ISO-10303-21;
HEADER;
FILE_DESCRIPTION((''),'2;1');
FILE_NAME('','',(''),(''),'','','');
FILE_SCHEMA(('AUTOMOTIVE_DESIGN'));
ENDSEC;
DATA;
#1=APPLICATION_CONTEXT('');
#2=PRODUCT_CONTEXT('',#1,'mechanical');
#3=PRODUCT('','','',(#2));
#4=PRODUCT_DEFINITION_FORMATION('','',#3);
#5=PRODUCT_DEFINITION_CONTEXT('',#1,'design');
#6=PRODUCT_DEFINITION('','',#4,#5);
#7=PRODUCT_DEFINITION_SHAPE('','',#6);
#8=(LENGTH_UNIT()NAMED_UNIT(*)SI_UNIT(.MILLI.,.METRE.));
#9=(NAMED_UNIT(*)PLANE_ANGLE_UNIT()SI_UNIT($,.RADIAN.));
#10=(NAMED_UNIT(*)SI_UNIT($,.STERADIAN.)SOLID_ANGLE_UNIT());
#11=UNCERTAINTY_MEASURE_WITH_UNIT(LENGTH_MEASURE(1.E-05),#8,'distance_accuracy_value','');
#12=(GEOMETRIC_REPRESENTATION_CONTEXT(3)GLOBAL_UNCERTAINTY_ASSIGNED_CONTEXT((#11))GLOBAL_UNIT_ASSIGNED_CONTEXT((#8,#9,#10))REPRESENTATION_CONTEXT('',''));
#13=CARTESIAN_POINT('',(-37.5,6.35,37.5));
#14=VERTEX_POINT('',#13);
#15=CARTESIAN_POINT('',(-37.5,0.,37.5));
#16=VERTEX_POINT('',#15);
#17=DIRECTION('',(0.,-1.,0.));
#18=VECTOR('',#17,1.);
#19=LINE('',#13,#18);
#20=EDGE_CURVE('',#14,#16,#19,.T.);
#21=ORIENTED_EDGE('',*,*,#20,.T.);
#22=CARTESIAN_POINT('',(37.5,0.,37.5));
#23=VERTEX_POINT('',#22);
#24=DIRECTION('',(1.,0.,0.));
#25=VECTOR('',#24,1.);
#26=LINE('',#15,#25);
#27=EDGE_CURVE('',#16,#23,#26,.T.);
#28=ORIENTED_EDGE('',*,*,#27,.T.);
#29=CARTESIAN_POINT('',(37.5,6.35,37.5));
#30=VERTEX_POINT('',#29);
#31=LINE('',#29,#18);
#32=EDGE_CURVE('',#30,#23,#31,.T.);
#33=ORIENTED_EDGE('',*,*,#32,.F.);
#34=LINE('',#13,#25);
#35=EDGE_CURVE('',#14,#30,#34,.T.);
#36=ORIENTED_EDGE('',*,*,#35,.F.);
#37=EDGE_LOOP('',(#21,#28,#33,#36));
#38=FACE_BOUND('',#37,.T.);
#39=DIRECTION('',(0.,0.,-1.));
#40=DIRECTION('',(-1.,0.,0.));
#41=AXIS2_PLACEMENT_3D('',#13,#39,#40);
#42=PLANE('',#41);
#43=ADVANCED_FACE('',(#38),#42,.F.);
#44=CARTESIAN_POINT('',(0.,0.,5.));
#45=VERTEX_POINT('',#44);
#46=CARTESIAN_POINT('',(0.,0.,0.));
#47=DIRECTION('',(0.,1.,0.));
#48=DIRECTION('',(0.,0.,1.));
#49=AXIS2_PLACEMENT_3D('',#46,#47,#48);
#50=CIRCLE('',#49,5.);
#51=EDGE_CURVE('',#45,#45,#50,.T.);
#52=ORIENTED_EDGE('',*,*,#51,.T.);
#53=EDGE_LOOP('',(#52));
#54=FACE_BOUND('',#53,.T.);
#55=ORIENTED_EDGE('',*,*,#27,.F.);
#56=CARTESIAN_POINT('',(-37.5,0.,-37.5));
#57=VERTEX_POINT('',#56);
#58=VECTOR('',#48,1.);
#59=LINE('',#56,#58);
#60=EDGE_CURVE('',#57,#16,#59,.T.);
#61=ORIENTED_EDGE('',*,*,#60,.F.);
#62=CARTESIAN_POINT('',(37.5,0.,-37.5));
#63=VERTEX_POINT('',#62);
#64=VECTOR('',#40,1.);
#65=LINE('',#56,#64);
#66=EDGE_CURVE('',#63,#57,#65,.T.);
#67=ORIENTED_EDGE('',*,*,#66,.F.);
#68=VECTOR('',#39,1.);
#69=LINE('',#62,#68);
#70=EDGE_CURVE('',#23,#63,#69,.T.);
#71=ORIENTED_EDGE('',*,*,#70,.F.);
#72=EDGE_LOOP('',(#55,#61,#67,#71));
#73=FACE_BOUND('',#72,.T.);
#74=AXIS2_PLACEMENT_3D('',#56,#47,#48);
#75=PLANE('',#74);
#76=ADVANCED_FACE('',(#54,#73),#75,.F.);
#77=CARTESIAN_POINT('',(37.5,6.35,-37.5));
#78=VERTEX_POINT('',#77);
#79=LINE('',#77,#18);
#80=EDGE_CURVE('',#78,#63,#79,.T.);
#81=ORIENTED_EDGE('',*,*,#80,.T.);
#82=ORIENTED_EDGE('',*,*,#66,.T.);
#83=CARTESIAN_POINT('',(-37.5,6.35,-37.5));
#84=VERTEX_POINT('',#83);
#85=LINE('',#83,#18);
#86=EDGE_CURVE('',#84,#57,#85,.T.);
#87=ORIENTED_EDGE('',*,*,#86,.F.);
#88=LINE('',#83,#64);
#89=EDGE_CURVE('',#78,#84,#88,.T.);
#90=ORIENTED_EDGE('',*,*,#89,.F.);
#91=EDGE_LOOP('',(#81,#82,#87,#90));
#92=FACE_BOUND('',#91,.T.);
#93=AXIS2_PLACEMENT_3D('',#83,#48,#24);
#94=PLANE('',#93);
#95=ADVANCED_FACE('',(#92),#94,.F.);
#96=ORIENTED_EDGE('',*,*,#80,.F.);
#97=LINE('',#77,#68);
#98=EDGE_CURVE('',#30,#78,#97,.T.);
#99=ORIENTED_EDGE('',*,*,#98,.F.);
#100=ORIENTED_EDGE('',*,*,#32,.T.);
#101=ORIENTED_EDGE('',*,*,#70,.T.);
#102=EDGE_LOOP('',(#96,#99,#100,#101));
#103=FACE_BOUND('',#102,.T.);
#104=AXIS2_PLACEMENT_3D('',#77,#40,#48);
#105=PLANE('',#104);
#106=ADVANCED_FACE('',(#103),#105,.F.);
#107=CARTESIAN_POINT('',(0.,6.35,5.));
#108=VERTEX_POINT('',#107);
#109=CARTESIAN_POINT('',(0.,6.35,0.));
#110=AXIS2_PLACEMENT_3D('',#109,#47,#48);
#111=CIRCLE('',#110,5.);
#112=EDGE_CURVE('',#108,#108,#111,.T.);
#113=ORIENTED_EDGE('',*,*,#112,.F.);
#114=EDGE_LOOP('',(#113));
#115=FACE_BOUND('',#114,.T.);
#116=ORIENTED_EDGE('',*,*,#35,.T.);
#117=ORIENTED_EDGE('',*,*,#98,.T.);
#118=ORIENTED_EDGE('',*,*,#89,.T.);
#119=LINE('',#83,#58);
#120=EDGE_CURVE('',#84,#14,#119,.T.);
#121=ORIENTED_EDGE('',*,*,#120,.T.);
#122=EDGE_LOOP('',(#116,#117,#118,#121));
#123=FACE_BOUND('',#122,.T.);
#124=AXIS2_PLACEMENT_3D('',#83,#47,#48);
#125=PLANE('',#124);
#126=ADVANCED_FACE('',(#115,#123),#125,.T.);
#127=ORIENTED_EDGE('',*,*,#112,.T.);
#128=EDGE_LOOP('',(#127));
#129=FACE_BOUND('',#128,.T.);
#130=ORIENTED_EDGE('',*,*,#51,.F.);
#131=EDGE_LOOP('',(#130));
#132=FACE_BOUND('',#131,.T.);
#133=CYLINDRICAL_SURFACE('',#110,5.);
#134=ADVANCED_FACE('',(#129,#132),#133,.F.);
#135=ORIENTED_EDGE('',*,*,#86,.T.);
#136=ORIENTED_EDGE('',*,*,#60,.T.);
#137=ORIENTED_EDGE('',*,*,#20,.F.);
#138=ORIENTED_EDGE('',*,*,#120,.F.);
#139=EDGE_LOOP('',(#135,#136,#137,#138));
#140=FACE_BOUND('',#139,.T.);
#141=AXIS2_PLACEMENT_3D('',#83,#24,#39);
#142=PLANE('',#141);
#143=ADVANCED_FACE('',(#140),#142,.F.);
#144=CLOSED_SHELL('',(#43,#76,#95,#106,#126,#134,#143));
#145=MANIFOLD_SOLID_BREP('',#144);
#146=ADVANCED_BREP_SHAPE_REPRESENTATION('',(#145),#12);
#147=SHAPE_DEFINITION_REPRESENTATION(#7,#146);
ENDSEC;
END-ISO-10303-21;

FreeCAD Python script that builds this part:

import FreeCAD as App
import Part
import Sketcher
Q = App.Units.Quantity


def add_polygon(sketch, points):
    """Adds a closed chain of lines whose ends are joined by coincident constraints."""
    first, n = sketch.GeometryCount, len(points)
    for a, b in zip(points, points[1:] + points[:1]):
        sketch.addGeometry(Part.LineSegment(App.Vector(*a, 0), App.Vector(*b, 0)), False)
    for i in range(n):
        sketch.addConstraint(Sketcher.Constraint("Coincident", first + i, 2, first + (i + 1) % n, 1))

doc = App.newDocument("Part")
body = doc.addObject("PartDesign::Body", "Body")

# Sketch on XZ plane
sketch1 = body.newObject("Sketcher::SketchObject", "Sketch")
sketch1.AttachmentSupport = (doc.getObject("XZ_Plane"), [""])
sketch1.MapMode = "FlatFace"
add_polygon(sketch1, [(-37.5, -37.5), (-37.5, 37.5), (37.5, 37.5), (37.5, -37.5)])  # lines 0-3
sketch1.addConstraint([
    Sketcher.Constraint("Vertical", 0),
    Sketcher.Constraint("Horizontal", 1),
    Sketcher.Constraint("Vertical", 2),
    Sketcher.Constraint("Horizontal", 3),
    Sketcher.Constraint("Symmetric", 0, 2, 2, 2, -1, 1),
    Sketcher.Constraint("Equal", 3, 0),
    Sketcher.Constraint("DistanceX", 1, 1, 1, 2, Q("75 mm")),
])
pad1 = body.newObject("PartDesign::Pad", "Pad")
pad1.Profile = sketch1
pad1.Length = 6.35
pad1.Reversed = True

# Sketch on XZ plane
sketch2 = body.newObject("Sketcher::SketchObject", "Sketch001")
sketch2.AttachmentSupport = (doc.getObject("XZ_Plane"), [""])
sketch2.MapMode = "FlatFace"
sketch2.AttachmentOffset = App.Placement(App.Vector(0, 0, -6.35), App.Rotation())
sketch2.addGeometry(Part.Circle(App.Vector(0, 0, 0), App.Vector(0, 0, 1), 5), False)
sketch2.addConstraint([
    Sketcher.Constraint("Coincident", 0, 3, -1, 1),
    Sketcher.Constraint("Diameter", 0, Q("10 mm")),
])
doc.recompute()
hole = body.newObject("PartDesign::Hole", "Hole")
hole.Profile = sketch2
hole.ThreadType = "None"
hole.Diameter = 10
hole.DepthType = "ThroughAll"
hole.Reversed = True

doc.recompute()
